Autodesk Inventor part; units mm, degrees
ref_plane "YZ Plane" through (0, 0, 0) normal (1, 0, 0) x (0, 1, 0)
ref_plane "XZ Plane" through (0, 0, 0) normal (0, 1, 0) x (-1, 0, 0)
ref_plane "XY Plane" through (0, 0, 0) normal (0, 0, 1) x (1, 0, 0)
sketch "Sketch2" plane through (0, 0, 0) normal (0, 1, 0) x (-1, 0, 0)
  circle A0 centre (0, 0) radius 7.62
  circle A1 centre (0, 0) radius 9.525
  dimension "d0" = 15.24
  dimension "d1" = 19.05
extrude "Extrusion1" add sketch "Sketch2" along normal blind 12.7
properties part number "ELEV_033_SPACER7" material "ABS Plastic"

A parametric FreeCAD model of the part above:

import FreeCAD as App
import Part
import Sketcher
Q = App.Units.Quantity

doc = App.newDocument("Part")
body = doc.addObject("PartDesign::Body", "Body")

sketch1 = doc.addObject("Sketcher::SketchObject", "Sketch")
body.addObject(sketch1)
sketch1.AttachmentSupport = (doc.XZ_Plane, [""])
sketch1.MapMode = "FlatFace"
sketch1.addGeometry(Part.Circle(App.Vector(0, 0, 0), App.Vector(0, 0, 1), 9.525), False)
sketch1.addGeometry(Part.Circle(App.Vector(0, 0, 0), App.Vector(0, 0, 1), 7.62), False)
sketch1.addConstraint(Sketcher.Constraint("Coincident", 0, 3, -1, 1))
sketch1.addConstraint(Sketcher.Constraint("Coincident", 1, 3, -1, 1))
sketch1.addConstraint(Sketcher.Constraint("Diameter", 1, Q("0.6 in")))
sketch1.addConstraint(Sketcher.Constraint("Diameter", 0, Q("0.75 in")))
pad1 = doc.addObject("PartDesign::Pad", "Pad")
body.addObject(pad1)
pad1.Profile = sketch1
pad1.Length = Q("0.5 in")
pad1.Reversed = True

doc.recompute()
